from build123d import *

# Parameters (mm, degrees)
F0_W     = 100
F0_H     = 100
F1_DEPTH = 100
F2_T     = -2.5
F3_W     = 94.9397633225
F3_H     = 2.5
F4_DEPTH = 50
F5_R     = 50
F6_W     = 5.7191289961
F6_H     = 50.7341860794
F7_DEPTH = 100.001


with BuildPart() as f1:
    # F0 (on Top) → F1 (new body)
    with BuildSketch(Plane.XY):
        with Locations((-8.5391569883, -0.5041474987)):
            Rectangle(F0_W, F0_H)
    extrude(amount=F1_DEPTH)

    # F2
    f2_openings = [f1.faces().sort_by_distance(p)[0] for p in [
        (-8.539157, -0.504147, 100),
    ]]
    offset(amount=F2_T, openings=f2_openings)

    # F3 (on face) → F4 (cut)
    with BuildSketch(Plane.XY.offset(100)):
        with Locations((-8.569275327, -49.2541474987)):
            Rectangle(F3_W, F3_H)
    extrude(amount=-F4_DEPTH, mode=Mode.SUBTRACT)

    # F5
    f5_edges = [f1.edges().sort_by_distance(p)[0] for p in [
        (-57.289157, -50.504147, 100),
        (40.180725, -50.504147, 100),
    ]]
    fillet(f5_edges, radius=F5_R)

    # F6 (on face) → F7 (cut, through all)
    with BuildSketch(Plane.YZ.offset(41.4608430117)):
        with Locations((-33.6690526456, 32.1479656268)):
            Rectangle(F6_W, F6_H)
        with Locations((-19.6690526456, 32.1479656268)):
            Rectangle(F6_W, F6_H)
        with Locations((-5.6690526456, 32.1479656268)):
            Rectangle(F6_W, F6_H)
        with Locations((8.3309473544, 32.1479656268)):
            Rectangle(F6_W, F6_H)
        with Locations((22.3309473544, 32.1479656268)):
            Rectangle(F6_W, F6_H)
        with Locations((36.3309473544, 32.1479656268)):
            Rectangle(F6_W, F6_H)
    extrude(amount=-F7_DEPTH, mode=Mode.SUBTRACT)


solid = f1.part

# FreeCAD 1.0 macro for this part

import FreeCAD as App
import Part
import Sketcher

V = App.Vector


def edges_at(feature, points):
    """Names of the edges that pass closest to the given points."""
    edges = feature.Shape.Edges
    near = lambda p: min(range(len(edges)), key=lambda i: edges[i].distToShape(Part.Vertex(*p))[0])
    return sorted({f"Edge{near(p) + 1}" for p in points})


def faces_at(feature, points):
    """Names of the faces that lie closest to the given points."""
    faces = feature.Shape.Faces
    near = lambda p: min(range(len(faces)), key=lambda i: faces[i].distToShape(Part.Vertex(*p))[0])
    return sorted({f"Face{near(p) + 1}" for p in points})

doc = App.newDocument("Part")
body = doc.addObject("PartDesign::Body", "Body")

# Sketch on XY plane
sketch1 = body.newObject("Sketcher::SketchObject", "Sketch")
sketch1.AttachmentSupport = (doc.getObject("XY_Plane"), [""])
sketch1.MapMode = "FlatFace"
sketch1.addGeometry(Part.LineSegment(V(-59, 49, 0), V(-59, -51, 0)), False)
sketch1.addGeometry(Part.LineSegment(V(-59, -51, 0), V(41, -51, 0)), False)
sketch1.addGeometry(Part.LineSegment(V(41, -51, 0), V(41, 49, 0)), False)
sketch1.addGeometry(Part.LineSegment(V(41, 49, 0), V(-59, 49, 0)), False)
sketch1.addConstraint(Sketcher.Constraint("Coincident", 0, 2, 1, 1))
sketch1.addConstraint(Sketcher.Constraint("Coincident", 1, 2, 2, 1))
sketch1.addConstraint(Sketcher.Constraint("Coincident", 2, 2, 3, 1))
sketch1.addConstraint(Sketcher.Constraint("Coincident", 3, 2, 0, 1))
sketch1.addConstraint(Sketcher.Constraint("Vertical", 0))
sketch1.addConstraint(Sketcher.Constraint("Horizontal", 1))
sketch1.addConstraint(Sketcher.Constraint("Vertical", 2))
sketch1.addConstraint(Sketcher.Constraint("Horizontal", 3))
sketch1.addConstraint(Sketcher.Constraint("Equal", 3, 0))
sketch1.addConstraint(Sketcher.Constraint("DistanceX", 1, 1, 1, 2, 100.0))
sketch1.addConstraint(Sketcher.Constraint("DistanceX", 0, 2, -1, 1, 58.539157))
sketch1.addConstraint(Sketcher.Constraint("DistanceY", 0, 2, -1, 1, 50.504147))
pad1 = body.newObject("PartDesign::Pad", "Pad")
pad1.Profile = sketch1
pad1.Length = 100
doc.recompute()

thickness = body.newObject("PartDesign::Thickness", "Thickness")
thickness.Base = (pad1, faces_at(pad1, [(-8.539, -0.504, 100)]))
thickness.Value = 2.5
thickness.Reversed = True
thickness.Join = "Arc"

# Sketch on XY plane
sketch2 = body.newObject("Sketcher::SketchObject", "Sketch001")
sketch2.AttachmentSupport = (doc.getObject("XY_Plane"), [""])
sketch2.MapMode = "FlatFace"
sketch2.AttachmentOffset = App.Placement(V(0, 0, 100), App.Rotation())
sketch2.addGeometry(Part.LineSegment(V(-56, -48, 0), V(-56, -50.5, 0)), False)
sketch2.addGeometry(Part.LineSegment(V(-56, -50.5, 0), V(38.9, -50.5, 0)), False)
sketch2.addGeometry(Part.LineSegment(V(38.9, -50.5, 0), V(38.9, -48, 0)), False)
sketch2.addGeometry(Part.LineSegment(V(38.9, -48, 0), V(-56, -48, 0)), False)
sketch2.addConstraint(Sketcher.Constraint("Coincident", 0, 2, 1, 1))
sketch2.addConstraint(Sketcher.Constraint("Coincident", 1, 2, 2, 1))
sketch2.addConstraint(Sketcher.Constraint("Coincident", 2, 2, 3, 1))
sketch2.addConstraint(Sketcher.Constraint("Coincident", 3, 2, 0, 1))
sketch2.addConstraint(Sketcher.Constraint("Vertical", 0))
sketch2.addConstraint(Sketcher.Constraint("Horizontal", 1))
sketch2.addConstraint(Sketcher.Constraint("Vertical", 2))
sketch2.addConstraint(Sketcher.Constraint("Horizontal", 3))
sketch2.addConstraint(Sketcher.Constraint("DistanceY", 0, 2, 0, 1, 2.5))
sketch2.addConstraint(Sketcher.Constraint("DistanceX", 1, 1, 1, 2, 94.939763))
sketch2.addConstraint(Sketcher.Constraint("DistanceX", 0, 2, -1, 1, 56.039157))
sketch2.addConstraint(Sketcher.Constraint("DistanceY", 0, 2, -1, 1, 50.504147))
pocket1 = body.newObject("PartDesign::Pocket", "Pocket")
pocket1.Profile = sketch2
pocket1.Length = 50
doc.recompute()

fillet = body.newObject("PartDesign::Fillet", "Fillet")
fillet.Base = (pocket1, edges_at(pocket1, [(-57.289, -50.504, 100), (40.181, -50.504, 100)]))
fillet.Radius = 50

# Sketch on YZ plane
sketch3 = body.newObject("Sketcher::SketchObject", "Sketch002")
sketch3.AttachmentSupport = (doc.getObject("YZ_Plane"), [""])
sketch3.MapMode = "FlatFace"
sketch3.AttachmentOffset = App.Placement(V(0, 0, 41.460843), App.Rotation())
sketch3.addGeometry(Part.LineSegment(V(-37, 58, 0), V(-37, 7, 0)), False)
sketch3.addGeometry(Part.LineSegment(V(-37, 7, 0), V(-31, 7, 0)), False)
sketch3.addGeometry(Part.LineSegment(V(-31, 7, 0), V(-31, 58, 0)), False)
sketch3.addGeometry(Part.LineSegment(V(-31, 58, 0), V(-37, 58, 0)), False)
sketch3.addGeometry(Part.LineSegment(V(-23, 58, 0), V(-23, 7, 0)), False)
sketch3.addGeometry(Part.LineSegment(V(-23, 7, 0), V(-17, 7, 0)), False)
sketch3.addGeometry(Part.LineSegment(V(-17, 7, 0), V(-17, 58, 0)), False)
sketch3.addGeometry(Part.LineSegment(V(-17, 58, 0), V(-23, 58, 0)), False)
sketch3.addGeometry(Part.LineSegment(V(-9, 58, 0), V(-9, 7, 0)), False)
sketch3.addGeometry(Part.LineSegment(V(-9, 7, 0), V(-3, 7, 0)), False)
sketch3.addGeometry(Part.LineSegment(V(-3, 7, 0), V(-3, 58, 0)), False)
sketch3.addGeometry(Part.LineSegment(V(-3, 58, 0), V(-9, 58, 0)), False)
sketch3.addGeometry(Part.LineSegment(V(5, 58, 0), V(5, 7, 0)), False)
sketch3.addGeometry(Part.LineSegment(V(5, 7, 0), V(11, 7, 0)), False)
sketch3.addGeometry(Part.LineSegment(V(11, 7, 0), V(11, 58, 0)), False)
sketch3.addGeometry(Part.LineSegment(V(11, 58, 0), V(5, 58, 0)), False)
sketch3.addGeometry(Part.LineSegment(V(19, 58, 0), V(19, 7, 0)), False)
sketch3.addGeometry(Part.LineSegment(V(19, 7, 0), V(25, 7, 0)), False)
sketch3.addGeometry(Part.LineSegment(V(25, 7, 0), V(25, 58, 0)), False)
sketch3.addGeometry(Part.LineSegment(V(25, 58, 0), V(19, 58, 0)), False)
sketch3.addGeometry(Part.LineSegment(V(33, 58, 0), V(33, 7, 0)), False)
sketch3.addGeometry(Part.LineSegment(V(33, 7, 0), V(39, 7, 0)), False)
sketch3.addGeometry(Part.LineSegment(V(39, 7, 0), V(39, 58, 0)), False)
sketch3.addGeometry(Part.LineSegment(V(39, 58, 0), V(33, 58, 0)), False)
sketch3.addConstraint(Sketcher.Constraint("Coincident", 0, 2, 1, 1))
sketch3.addConstraint(Sketcher.Constraint("Coincident", 1, 2, 2, 1))
sketch3.addConstraint(Sketcher.Constraint("Coincident", 2, 2, 3, 1))
sketch3.addConstraint(Sketcher.Constraint("Coincident", 3, 2, 0, 1))
sketch3.addConstraint(Sketcher.Constraint("Coincident", 4, 2, 5, 1))
sketch3.addConstraint(Sketcher.Constraint("Coincident", 5, 2, 6, 1))
sketch3.addConstraint(Sketcher.Constraint("Coincident", 6, 2, 7, 1))
sketch3.addConstraint(Sketcher.Constraint("Coincident", 7, 2, 4, 1))
sketch3.addConstraint(Sketcher.Constraint("Coincident", 8, 2, 9, 1))
sketch3.addConstraint(Sketcher.Constraint("Coincident", 9, 2, 10, 1))
sketch3.addConstraint(Sketcher.Constraint("Coincident", 10, 2, 11, 1))
sketch3.addConstraint(Sketcher.Constraint("Coincident", 11, 2, 8, 1))
sketch3.addConstraint(Sketcher.Constraint("Coincident", 12, 2, 13, 1))
sketch3.addConstraint(Sketcher.Constraint("Coincident", 13, 2, 14, 1))
sketch3.addConstraint(Sketcher.Constraint("Coincident", 14, 2, 15, 1))
sketch3.addConstraint(Sketcher.Constraint("Coincident", 15, 2, 12, 1))
sketch3.addConstraint(Sketcher.Constraint("Coincident", 16, 2, 17, 1))
sketch3.addConstraint(Sketcher.Constraint("Coincident", 17, 2, 18, 1))
sketch3.addConstraint(Sketcher.Constraint("Coincident", 18, 2, 19, 1))
sketch3.addConstraint(Sketcher.Constraint("Coincident", 19, 2, 16, 1))
sketch3.addConstraint(Sketcher.Constraint("Coincident", 20, 2, 21, 1))
sketch3.addConstraint(Sketcher.Constraint("Coincident", 21, 2, 22, 1))
sketch3.addConstraint(Sketcher.Constraint("Coincident", 22, 2, 23, 1))
sketch3.addConstraint(Sketcher.Constraint("Coincident", 23, 2, 20, 1))
sketch3.addConstraint(Sketcher.Constraint("Vertical", 0))
sketch3.addConstraint(Sketcher.Constraint("Horizontal", 1))
sketch3.addConstraint(Sketcher.Constraint("Vertical", 2))
sketch3.addConstraint(Sketcher.Constraint("Horizontal", 3))
sketch3.addConstraint(Sketcher.Constraint("Vertical", 4))
sketch3.addConstraint(Sketcher.Constraint("Horizontal", 5))
sketch3.addConstraint(Sketcher.Constraint("Vertical", 6))
sketch3.addConstraint(Sketcher.Constraint("Horizontal", 7))
sketch3.addConstraint(Sketcher.Constraint("Vertical", 8))
sketch3.addConstraint(Sketcher.Constraint("Horizontal", 9))
sketch3.addConstraint(Sketcher.Constraint("Vertical", 10))
sketch3.addConstraint(Sketcher.Constraint("Horizontal", 11))
sketch3.addConstraint(Sketcher.Constraint("Vertical", 12))
sketch3.addConstraint(Sketcher.Constraint("Horizontal", 13))
sketch3.addConstraint(Sketcher.Constraint("Vertical", 14))
sketch3.addConstraint(Sketcher.Constraint("Horizontal", 15))
sketch3.addConstraint(Sketcher.Constraint("Vertical", 16))
sketch3.addConstraint(Sketcher.Constraint("Horizontal", 17))
sketch3.addConstraint(Sketcher.Constraint("Vertical", 18))
sketch3.addConstraint(Sketcher.Constraint("Horizontal", 19))
sketch3.addConstraint(Sketcher.Constraint("Vertical", 20))
sketch3.addConstraint(Sketcher.Constraint("Horizontal", 21))
sketch3.addConstraint(Sketcher.Constraint("Vertical", 22))
sketch3.addConstraint(Sketcher.Constraint("Horizontal", 23))
sketch3.addConstraint(Sketcher.Constraint("Horizontal", 1, 2, 4, 2))
sketch3.addConstraint(Sketcher.Constraint("Horizontal", 3, 2, 6, 2))
sketch3.addConstraint(Sketcher.Constraint("Horizontal", 5, 2, 8, 2))
sketch3.addConstraint(Sketcher.Constraint("Horizontal", 7, 2, 10, 2))
sketch3.addConstraint(Sketcher.Constraint("Horizontal", 9, 2, 12, 2))
sketch3.addConstraint(Sketcher.Constraint("Horizontal", 11, 2, 14, 2))
sketch3.addConstraint(Sketcher.Constraint("Horizontal", 13, 2, 16, 2))
sketch3.addConstraint(Sketcher.Constraint("Horizontal", 15, 2, 18, 2))
sketch3.addConstraint(Sketcher.Constraint("Horizontal", 17, 2, 20, 2))
sketch3.addConstraint(Sketcher.Constraint("Horizontal", 19, 2, 22, 2))
sketch3.addConstraint(Sketcher.Constraint("Equal", 3, 5))
sketch3.addConstraint(Sketcher.Constraint("Equal", 7, 9))
sketch3.addConstraint(Sketcher.Constraint("Equal", 11, 13))
sketch3.addConstraint(Sketcher.Constraint("Equal", 15, 17))
sketch3.addConstraint(Sketcher.Constraint("Equal", 19, 21))
sketch3.addConstraint(Sketcher.Constraint("DistanceX", 0, 2, 4, 2, 14.0))
sketch3.addConstraint(Sketcher.Constraint("DistanceX", 4, 2, 8, 2, 14.0))
sketch3.addConstraint(Sketcher.Constraint("DistanceX", 8, 2, 12, 2, 14.0))
sketch3.addConstraint(Sketcher.Constraint("DistanceX", 12, 2, 16, 2, 14.0))
sketch3.addConstraint(Sketcher.Constraint("DistanceX", 16, 2, 20, 2, 14.0))
sketch3.addConstraint(Sketcher.Constraint("DistanceX", 1, 1, 1, 2, 5.719129))
sketch3.addConstraint(Sketcher.Constraint("DistanceY", 0, 2, 0, 1, 50.734186))
sketch3.addConstraint(Sketcher.Constraint("DistanceX", 1, 2, -1, 1, 30.809488))
sketch3.addConstraint(Sketcher.Constraint("DistanceY", -1, 1, 2, 2, 57.515059))
pocket2 = body.newObject("PartDesign::Pocket", "Pocket001")
pocket2.Profile = sketch3
pocket2.Type = "ThroughAll"

doc.recompute()
